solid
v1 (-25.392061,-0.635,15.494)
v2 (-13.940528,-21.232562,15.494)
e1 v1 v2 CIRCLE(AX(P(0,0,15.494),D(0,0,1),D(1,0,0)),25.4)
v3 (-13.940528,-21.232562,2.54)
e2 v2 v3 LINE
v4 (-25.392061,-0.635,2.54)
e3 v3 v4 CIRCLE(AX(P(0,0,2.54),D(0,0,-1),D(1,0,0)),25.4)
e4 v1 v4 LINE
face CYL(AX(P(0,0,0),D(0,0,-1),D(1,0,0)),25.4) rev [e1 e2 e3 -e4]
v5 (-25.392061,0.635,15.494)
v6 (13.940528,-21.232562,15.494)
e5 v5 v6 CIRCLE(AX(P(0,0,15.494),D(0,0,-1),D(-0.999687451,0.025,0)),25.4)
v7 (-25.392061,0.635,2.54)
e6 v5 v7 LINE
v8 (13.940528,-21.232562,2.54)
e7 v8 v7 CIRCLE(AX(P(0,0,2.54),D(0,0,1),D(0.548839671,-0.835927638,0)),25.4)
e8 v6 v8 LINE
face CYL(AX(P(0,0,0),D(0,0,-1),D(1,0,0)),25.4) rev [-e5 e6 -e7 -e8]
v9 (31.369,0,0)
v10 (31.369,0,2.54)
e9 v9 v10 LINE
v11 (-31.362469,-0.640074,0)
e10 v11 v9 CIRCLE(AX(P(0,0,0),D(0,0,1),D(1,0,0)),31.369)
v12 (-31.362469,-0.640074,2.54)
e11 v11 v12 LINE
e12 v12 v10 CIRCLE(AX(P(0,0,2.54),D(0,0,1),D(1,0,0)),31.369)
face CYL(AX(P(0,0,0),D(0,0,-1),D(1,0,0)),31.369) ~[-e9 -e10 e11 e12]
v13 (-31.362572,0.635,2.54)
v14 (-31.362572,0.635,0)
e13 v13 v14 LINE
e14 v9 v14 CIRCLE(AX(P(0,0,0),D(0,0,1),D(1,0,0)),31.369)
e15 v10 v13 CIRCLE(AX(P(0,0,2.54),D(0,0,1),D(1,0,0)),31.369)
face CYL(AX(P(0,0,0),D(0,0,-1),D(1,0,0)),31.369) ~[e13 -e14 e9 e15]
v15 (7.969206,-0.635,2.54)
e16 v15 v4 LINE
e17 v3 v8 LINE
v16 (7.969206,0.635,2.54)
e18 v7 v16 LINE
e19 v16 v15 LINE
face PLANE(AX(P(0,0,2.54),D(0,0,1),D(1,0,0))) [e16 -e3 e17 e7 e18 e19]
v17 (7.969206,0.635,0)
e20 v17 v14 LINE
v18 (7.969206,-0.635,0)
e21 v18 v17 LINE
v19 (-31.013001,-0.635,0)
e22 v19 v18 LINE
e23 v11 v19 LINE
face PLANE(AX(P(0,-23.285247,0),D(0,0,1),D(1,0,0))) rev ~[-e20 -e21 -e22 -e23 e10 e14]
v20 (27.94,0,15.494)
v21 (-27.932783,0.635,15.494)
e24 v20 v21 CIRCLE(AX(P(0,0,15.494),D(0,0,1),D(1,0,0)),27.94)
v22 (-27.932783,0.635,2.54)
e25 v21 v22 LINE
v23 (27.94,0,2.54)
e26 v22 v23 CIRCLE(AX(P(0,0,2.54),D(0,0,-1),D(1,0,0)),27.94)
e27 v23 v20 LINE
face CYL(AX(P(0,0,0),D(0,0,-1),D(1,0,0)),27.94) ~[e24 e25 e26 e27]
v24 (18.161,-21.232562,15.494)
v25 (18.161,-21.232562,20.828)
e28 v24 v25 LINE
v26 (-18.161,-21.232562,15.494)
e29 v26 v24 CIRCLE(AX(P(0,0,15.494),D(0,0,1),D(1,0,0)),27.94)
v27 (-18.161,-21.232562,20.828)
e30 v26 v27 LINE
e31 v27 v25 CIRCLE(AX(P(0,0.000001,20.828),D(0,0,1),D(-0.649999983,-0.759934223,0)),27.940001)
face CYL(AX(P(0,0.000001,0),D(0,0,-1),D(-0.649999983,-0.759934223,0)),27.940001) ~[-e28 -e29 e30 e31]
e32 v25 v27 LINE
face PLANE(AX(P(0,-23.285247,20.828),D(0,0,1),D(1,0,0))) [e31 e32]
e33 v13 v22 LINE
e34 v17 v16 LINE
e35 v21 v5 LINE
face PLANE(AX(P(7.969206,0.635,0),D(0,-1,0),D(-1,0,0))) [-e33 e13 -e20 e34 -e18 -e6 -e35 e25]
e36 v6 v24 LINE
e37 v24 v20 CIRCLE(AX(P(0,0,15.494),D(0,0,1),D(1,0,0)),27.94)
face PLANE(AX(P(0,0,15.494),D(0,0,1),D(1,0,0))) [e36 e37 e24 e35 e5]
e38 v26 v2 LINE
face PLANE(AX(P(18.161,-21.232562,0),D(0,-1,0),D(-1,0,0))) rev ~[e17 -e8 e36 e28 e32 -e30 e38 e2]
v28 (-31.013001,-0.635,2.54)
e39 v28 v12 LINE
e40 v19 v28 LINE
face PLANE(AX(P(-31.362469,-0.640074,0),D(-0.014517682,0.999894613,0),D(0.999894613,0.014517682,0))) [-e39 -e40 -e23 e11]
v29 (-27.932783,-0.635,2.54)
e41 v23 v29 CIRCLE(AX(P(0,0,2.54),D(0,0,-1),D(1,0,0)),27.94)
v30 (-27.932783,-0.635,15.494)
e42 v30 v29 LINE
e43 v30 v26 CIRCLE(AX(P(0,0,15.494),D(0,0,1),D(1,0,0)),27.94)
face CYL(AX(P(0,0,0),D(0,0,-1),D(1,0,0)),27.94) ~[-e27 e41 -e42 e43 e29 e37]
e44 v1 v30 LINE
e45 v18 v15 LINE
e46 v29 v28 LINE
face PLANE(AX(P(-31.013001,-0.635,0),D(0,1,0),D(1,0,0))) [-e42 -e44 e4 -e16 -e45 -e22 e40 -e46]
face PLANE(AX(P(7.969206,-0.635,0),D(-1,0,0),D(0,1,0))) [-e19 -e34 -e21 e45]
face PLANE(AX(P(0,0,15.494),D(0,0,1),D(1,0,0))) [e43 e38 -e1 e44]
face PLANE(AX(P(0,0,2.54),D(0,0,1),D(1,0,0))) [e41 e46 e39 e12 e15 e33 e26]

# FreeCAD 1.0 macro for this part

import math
import FreeCAD as App
import Part
import Sketcher
from FreeCAD import Vector
Q = App.Units.Quantity


def add_polygon(sketch, points):
    """Adds a closed chain of lines whose ends are joined by coincident constraints."""
    first, n = sketch.GeometryCount, len(points)
    for a, b in zip(points, points[1:] + points[:1]):
        sketch.addGeometry(Part.LineSegment(App.Vector(*a, 0), App.Vector(*b, 0)), False)
    for i in range(n):
        sketch.addConstraint(Sketcher.Constraint("Coincident", first + i, 2, first + (i + 1) % n, 1))

doc = App.newDocument("Part")
body = doc.addObject("PartDesign::Body", "Body")

# Sketch on XY plane
sketch1 = body.newObject("Sketcher::SketchObject", "Sketch")
sketch1.AttachmentSupport = (doc.getObject("XY_Plane"), [""])
sketch1.MapMode = "FlatFace"
sketch1.addGeometry(Part.Circle(Vector(0, 0, 0), Vector(0, 0, 1), 31), False)
sketch1.addConstraint([
    Sketcher.Constraint("Coincident", 0, 3, -1, 1),
    Sketcher.Constraint("Diameter", 0, Q("2.47 in")),
])
pad1 = body.newObject("PartDesign::Pad", "Pad")
pad1.Profile = sketch1
pad1.Length = Q("0.1 in")

# Sketch on XY plane
sketch2 = body.newObject("Sketcher::SketchObject", "Sketch001")
sketch2.AttachmentSupport = (doc.getObject("XY_Plane"), [""])
sketch2.MapMode = "FlatFace"
sketch2.addGeometry([
    Part.Circle(Vector(0, 0, 0), Vector(0, 0, 1), 28),
    Part.Circle(Vector(0, 0, 0), Vector(0, 0, 1), 25),
], False)
sketch2.addConstraint([
    Sketcher.Constraint("Coincident", 0, 3, -1, 1),
    Sketcher.Constraint("Coincident", 1, 3, -1, 1),
    Sketcher.Constraint("Diameter", 1, Q("2 in")),
    Sketcher.Constraint("Diameter", 0, Q("2.2 in")),
])
pad2 = body.newObject("PartDesign::Pad", "Pad001")
pad2.Profile = sketch2
pad2.Length = Q("0.61 in")

# Sketch on XY plane
sketch3 = body.newObject("Sketcher::SketchObject", "Sketch002")
sketch3.AttachmentSupport = (doc.getObject("XY_Plane"), [""])
sketch3.MapMode = "FlatFace"
add_polygon(sketch3, [(-31.98, 0.64), (-31.98, -0.65), (-31.36, -0.64), (-31.01, -0.64), (7.97, -0.64), (7.97, 0.64)])  # lines 0-5
sketch3.addConstraint([
    Sketcher.Constraint("Vertical", 0),
    Sketcher.Constraint("Horizontal", 3),
    Sketcher.Constraint("Vertical", 4),
    Sketcher.Constraint("Horizontal", 5),
    Sketcher.Constraint("Parallel", 1, 2),
    Sketcher.Constraint("DistanceY", 4, 1, 4, 2, Q("0.05 in")),
    Sketcher.Constraint("DistanceY", 2, 2, -1, 1, Q("0.025 in")),
    Sketcher.Constraint("DistanceY", 0, 2, 0, 1, Q("1.284039 mm")),
    Sketcher.Constraint("DistanceX", 2, 2, -1, 1, Q("31.013001 mm")),
    Sketcher.Constraint("DistanceX", 3, 1, 3, 2, Q("38.982207 mm")),
    Sketcher.Constraint("DistanceX", 5, 2, 5, 1, Q("39.949195 mm")),
    Sketcher.Constraint("DistanceX", 1, 2, -1, 1, Q("31.362469 mm")),
])
pocket1 = body.newObject("PartDesign::Pocket", "Pocket")
pocket1.Profile = sketch3
pocket1.Length = Q("1 in")
pocket1.Reversed = True

# Sketch on XY plane
sketch4 = body.newObject("Sketcher::SketchObject", "Sketch003")
sketch4.AttachmentSupport = (doc.getObject("XY_Plane"), [""])
sketch4.MapMode = "FlatFace"
sketch4.addGeometry([
    Part.LineSegment(Vector(18, -21, 0), Vector(-18, -21, 0)),
    Part.ArcOfCircle(Part.Circle(Vector(0, 0, 0), Vector(0, 0, 1), 28), math.radians(-131), math.radians(-49)),
], False)
sketch4.addConstraint([
    Sketcher.Constraint("Coincident", 0, 1, 1, 2),
    Sketcher.Constraint("Coincident", 1, 1, 0, 2),
    Sketcher.Constraint("Horizontal", 0),
    Sketcher.Constraint("Coincident", 1, 3, -1, 1),
    Sketcher.Constraint("Radius", 1, Q("1.1 in")),
    Sketcher.Constraint("DistanceX", 0, 2, 0, 1, Q("1.43 in")),
])
pad3 = body.newObject("PartDesign::Pad", "Pad002")
pad3.Profile = sketch4
pad3.Length = Q("0.82 in")

doc.recompute()
